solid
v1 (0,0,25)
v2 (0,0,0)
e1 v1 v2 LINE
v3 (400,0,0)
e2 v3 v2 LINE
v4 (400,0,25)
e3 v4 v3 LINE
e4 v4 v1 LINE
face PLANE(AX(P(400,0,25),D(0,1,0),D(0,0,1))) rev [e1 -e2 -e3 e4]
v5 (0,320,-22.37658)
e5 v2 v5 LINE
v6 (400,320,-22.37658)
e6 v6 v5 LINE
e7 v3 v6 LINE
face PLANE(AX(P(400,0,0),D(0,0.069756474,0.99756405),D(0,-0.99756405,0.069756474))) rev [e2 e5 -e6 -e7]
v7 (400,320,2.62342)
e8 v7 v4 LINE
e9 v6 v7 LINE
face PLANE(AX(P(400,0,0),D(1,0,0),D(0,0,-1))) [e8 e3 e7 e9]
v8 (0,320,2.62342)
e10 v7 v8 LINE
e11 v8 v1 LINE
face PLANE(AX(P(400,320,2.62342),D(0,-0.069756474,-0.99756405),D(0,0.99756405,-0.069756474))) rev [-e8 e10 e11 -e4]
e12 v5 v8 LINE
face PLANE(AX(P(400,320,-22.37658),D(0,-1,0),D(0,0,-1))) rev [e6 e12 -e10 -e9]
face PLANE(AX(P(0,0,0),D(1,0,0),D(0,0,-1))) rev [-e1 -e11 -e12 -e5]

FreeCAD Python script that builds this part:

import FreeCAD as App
import Part
import Sketcher

V = App.Vector
Q = App.Units.Quantity


def add_polygon(sketch, points):
    """Adds a closed chain of lines whose ends are joined by coincident constraints."""
    first, n = sketch.GeometryCount, len(points)
    for a, b in zip(points, points[1:] + points[:1]):
        sketch.addGeometry(Part.LineSegment(App.Vector(*a, 0), App.Vector(*b, 0)), False)
    for i in range(n):
        sketch.addConstraint(Sketcher.Constraint("Coincident", first + i, 2, first + (i + 1) % n, 1))

doc = App.newDocument("Part")
body = doc.addObject("PartDesign::Body", "Body")

# Sketch on YZ plane
sketch1 = doc.addObject("Sketcher::SketchObject", "Sketch")
body.addObject(sketch1)
sketch1.AttachmentSupport = (doc.YZ_Plane, [""])
sketch1.MapMode = "FlatFace"
add_polygon(sketch1, [(0, 25), (0, 0), (320, -22), (320, 3)])  # lines 0-3
sketch1.addConstraint(Sketcher.Constraint("Vertical", 0))
sketch1.addConstraint(Sketcher.Constraint("Vertical", 2))
sketch1.addConstraint(Sketcher.Constraint("Coincident", 0, 2, -1, 1))
sketch1.addConstraint(Sketcher.Constraint("Parallel", 1, 3))
sketch1.addConstraint(Sketcher.Constraint("DistanceY", 0, 2, 0, 1, 25.0))
sketch1.addConstraint(Sketcher.Constraint("Angle", 1, Q("-4 deg")))
sketch1.addConstraint(Sketcher.Constraint("DistanceX", -1, 1, 1, 2, 320.0))
pad1 = doc.addObject("PartDesign::Pad", "Pad")
body.addObject(pad1)
pad1.Profile = sketch1
pad1.Length = 400

doc.recompute()
